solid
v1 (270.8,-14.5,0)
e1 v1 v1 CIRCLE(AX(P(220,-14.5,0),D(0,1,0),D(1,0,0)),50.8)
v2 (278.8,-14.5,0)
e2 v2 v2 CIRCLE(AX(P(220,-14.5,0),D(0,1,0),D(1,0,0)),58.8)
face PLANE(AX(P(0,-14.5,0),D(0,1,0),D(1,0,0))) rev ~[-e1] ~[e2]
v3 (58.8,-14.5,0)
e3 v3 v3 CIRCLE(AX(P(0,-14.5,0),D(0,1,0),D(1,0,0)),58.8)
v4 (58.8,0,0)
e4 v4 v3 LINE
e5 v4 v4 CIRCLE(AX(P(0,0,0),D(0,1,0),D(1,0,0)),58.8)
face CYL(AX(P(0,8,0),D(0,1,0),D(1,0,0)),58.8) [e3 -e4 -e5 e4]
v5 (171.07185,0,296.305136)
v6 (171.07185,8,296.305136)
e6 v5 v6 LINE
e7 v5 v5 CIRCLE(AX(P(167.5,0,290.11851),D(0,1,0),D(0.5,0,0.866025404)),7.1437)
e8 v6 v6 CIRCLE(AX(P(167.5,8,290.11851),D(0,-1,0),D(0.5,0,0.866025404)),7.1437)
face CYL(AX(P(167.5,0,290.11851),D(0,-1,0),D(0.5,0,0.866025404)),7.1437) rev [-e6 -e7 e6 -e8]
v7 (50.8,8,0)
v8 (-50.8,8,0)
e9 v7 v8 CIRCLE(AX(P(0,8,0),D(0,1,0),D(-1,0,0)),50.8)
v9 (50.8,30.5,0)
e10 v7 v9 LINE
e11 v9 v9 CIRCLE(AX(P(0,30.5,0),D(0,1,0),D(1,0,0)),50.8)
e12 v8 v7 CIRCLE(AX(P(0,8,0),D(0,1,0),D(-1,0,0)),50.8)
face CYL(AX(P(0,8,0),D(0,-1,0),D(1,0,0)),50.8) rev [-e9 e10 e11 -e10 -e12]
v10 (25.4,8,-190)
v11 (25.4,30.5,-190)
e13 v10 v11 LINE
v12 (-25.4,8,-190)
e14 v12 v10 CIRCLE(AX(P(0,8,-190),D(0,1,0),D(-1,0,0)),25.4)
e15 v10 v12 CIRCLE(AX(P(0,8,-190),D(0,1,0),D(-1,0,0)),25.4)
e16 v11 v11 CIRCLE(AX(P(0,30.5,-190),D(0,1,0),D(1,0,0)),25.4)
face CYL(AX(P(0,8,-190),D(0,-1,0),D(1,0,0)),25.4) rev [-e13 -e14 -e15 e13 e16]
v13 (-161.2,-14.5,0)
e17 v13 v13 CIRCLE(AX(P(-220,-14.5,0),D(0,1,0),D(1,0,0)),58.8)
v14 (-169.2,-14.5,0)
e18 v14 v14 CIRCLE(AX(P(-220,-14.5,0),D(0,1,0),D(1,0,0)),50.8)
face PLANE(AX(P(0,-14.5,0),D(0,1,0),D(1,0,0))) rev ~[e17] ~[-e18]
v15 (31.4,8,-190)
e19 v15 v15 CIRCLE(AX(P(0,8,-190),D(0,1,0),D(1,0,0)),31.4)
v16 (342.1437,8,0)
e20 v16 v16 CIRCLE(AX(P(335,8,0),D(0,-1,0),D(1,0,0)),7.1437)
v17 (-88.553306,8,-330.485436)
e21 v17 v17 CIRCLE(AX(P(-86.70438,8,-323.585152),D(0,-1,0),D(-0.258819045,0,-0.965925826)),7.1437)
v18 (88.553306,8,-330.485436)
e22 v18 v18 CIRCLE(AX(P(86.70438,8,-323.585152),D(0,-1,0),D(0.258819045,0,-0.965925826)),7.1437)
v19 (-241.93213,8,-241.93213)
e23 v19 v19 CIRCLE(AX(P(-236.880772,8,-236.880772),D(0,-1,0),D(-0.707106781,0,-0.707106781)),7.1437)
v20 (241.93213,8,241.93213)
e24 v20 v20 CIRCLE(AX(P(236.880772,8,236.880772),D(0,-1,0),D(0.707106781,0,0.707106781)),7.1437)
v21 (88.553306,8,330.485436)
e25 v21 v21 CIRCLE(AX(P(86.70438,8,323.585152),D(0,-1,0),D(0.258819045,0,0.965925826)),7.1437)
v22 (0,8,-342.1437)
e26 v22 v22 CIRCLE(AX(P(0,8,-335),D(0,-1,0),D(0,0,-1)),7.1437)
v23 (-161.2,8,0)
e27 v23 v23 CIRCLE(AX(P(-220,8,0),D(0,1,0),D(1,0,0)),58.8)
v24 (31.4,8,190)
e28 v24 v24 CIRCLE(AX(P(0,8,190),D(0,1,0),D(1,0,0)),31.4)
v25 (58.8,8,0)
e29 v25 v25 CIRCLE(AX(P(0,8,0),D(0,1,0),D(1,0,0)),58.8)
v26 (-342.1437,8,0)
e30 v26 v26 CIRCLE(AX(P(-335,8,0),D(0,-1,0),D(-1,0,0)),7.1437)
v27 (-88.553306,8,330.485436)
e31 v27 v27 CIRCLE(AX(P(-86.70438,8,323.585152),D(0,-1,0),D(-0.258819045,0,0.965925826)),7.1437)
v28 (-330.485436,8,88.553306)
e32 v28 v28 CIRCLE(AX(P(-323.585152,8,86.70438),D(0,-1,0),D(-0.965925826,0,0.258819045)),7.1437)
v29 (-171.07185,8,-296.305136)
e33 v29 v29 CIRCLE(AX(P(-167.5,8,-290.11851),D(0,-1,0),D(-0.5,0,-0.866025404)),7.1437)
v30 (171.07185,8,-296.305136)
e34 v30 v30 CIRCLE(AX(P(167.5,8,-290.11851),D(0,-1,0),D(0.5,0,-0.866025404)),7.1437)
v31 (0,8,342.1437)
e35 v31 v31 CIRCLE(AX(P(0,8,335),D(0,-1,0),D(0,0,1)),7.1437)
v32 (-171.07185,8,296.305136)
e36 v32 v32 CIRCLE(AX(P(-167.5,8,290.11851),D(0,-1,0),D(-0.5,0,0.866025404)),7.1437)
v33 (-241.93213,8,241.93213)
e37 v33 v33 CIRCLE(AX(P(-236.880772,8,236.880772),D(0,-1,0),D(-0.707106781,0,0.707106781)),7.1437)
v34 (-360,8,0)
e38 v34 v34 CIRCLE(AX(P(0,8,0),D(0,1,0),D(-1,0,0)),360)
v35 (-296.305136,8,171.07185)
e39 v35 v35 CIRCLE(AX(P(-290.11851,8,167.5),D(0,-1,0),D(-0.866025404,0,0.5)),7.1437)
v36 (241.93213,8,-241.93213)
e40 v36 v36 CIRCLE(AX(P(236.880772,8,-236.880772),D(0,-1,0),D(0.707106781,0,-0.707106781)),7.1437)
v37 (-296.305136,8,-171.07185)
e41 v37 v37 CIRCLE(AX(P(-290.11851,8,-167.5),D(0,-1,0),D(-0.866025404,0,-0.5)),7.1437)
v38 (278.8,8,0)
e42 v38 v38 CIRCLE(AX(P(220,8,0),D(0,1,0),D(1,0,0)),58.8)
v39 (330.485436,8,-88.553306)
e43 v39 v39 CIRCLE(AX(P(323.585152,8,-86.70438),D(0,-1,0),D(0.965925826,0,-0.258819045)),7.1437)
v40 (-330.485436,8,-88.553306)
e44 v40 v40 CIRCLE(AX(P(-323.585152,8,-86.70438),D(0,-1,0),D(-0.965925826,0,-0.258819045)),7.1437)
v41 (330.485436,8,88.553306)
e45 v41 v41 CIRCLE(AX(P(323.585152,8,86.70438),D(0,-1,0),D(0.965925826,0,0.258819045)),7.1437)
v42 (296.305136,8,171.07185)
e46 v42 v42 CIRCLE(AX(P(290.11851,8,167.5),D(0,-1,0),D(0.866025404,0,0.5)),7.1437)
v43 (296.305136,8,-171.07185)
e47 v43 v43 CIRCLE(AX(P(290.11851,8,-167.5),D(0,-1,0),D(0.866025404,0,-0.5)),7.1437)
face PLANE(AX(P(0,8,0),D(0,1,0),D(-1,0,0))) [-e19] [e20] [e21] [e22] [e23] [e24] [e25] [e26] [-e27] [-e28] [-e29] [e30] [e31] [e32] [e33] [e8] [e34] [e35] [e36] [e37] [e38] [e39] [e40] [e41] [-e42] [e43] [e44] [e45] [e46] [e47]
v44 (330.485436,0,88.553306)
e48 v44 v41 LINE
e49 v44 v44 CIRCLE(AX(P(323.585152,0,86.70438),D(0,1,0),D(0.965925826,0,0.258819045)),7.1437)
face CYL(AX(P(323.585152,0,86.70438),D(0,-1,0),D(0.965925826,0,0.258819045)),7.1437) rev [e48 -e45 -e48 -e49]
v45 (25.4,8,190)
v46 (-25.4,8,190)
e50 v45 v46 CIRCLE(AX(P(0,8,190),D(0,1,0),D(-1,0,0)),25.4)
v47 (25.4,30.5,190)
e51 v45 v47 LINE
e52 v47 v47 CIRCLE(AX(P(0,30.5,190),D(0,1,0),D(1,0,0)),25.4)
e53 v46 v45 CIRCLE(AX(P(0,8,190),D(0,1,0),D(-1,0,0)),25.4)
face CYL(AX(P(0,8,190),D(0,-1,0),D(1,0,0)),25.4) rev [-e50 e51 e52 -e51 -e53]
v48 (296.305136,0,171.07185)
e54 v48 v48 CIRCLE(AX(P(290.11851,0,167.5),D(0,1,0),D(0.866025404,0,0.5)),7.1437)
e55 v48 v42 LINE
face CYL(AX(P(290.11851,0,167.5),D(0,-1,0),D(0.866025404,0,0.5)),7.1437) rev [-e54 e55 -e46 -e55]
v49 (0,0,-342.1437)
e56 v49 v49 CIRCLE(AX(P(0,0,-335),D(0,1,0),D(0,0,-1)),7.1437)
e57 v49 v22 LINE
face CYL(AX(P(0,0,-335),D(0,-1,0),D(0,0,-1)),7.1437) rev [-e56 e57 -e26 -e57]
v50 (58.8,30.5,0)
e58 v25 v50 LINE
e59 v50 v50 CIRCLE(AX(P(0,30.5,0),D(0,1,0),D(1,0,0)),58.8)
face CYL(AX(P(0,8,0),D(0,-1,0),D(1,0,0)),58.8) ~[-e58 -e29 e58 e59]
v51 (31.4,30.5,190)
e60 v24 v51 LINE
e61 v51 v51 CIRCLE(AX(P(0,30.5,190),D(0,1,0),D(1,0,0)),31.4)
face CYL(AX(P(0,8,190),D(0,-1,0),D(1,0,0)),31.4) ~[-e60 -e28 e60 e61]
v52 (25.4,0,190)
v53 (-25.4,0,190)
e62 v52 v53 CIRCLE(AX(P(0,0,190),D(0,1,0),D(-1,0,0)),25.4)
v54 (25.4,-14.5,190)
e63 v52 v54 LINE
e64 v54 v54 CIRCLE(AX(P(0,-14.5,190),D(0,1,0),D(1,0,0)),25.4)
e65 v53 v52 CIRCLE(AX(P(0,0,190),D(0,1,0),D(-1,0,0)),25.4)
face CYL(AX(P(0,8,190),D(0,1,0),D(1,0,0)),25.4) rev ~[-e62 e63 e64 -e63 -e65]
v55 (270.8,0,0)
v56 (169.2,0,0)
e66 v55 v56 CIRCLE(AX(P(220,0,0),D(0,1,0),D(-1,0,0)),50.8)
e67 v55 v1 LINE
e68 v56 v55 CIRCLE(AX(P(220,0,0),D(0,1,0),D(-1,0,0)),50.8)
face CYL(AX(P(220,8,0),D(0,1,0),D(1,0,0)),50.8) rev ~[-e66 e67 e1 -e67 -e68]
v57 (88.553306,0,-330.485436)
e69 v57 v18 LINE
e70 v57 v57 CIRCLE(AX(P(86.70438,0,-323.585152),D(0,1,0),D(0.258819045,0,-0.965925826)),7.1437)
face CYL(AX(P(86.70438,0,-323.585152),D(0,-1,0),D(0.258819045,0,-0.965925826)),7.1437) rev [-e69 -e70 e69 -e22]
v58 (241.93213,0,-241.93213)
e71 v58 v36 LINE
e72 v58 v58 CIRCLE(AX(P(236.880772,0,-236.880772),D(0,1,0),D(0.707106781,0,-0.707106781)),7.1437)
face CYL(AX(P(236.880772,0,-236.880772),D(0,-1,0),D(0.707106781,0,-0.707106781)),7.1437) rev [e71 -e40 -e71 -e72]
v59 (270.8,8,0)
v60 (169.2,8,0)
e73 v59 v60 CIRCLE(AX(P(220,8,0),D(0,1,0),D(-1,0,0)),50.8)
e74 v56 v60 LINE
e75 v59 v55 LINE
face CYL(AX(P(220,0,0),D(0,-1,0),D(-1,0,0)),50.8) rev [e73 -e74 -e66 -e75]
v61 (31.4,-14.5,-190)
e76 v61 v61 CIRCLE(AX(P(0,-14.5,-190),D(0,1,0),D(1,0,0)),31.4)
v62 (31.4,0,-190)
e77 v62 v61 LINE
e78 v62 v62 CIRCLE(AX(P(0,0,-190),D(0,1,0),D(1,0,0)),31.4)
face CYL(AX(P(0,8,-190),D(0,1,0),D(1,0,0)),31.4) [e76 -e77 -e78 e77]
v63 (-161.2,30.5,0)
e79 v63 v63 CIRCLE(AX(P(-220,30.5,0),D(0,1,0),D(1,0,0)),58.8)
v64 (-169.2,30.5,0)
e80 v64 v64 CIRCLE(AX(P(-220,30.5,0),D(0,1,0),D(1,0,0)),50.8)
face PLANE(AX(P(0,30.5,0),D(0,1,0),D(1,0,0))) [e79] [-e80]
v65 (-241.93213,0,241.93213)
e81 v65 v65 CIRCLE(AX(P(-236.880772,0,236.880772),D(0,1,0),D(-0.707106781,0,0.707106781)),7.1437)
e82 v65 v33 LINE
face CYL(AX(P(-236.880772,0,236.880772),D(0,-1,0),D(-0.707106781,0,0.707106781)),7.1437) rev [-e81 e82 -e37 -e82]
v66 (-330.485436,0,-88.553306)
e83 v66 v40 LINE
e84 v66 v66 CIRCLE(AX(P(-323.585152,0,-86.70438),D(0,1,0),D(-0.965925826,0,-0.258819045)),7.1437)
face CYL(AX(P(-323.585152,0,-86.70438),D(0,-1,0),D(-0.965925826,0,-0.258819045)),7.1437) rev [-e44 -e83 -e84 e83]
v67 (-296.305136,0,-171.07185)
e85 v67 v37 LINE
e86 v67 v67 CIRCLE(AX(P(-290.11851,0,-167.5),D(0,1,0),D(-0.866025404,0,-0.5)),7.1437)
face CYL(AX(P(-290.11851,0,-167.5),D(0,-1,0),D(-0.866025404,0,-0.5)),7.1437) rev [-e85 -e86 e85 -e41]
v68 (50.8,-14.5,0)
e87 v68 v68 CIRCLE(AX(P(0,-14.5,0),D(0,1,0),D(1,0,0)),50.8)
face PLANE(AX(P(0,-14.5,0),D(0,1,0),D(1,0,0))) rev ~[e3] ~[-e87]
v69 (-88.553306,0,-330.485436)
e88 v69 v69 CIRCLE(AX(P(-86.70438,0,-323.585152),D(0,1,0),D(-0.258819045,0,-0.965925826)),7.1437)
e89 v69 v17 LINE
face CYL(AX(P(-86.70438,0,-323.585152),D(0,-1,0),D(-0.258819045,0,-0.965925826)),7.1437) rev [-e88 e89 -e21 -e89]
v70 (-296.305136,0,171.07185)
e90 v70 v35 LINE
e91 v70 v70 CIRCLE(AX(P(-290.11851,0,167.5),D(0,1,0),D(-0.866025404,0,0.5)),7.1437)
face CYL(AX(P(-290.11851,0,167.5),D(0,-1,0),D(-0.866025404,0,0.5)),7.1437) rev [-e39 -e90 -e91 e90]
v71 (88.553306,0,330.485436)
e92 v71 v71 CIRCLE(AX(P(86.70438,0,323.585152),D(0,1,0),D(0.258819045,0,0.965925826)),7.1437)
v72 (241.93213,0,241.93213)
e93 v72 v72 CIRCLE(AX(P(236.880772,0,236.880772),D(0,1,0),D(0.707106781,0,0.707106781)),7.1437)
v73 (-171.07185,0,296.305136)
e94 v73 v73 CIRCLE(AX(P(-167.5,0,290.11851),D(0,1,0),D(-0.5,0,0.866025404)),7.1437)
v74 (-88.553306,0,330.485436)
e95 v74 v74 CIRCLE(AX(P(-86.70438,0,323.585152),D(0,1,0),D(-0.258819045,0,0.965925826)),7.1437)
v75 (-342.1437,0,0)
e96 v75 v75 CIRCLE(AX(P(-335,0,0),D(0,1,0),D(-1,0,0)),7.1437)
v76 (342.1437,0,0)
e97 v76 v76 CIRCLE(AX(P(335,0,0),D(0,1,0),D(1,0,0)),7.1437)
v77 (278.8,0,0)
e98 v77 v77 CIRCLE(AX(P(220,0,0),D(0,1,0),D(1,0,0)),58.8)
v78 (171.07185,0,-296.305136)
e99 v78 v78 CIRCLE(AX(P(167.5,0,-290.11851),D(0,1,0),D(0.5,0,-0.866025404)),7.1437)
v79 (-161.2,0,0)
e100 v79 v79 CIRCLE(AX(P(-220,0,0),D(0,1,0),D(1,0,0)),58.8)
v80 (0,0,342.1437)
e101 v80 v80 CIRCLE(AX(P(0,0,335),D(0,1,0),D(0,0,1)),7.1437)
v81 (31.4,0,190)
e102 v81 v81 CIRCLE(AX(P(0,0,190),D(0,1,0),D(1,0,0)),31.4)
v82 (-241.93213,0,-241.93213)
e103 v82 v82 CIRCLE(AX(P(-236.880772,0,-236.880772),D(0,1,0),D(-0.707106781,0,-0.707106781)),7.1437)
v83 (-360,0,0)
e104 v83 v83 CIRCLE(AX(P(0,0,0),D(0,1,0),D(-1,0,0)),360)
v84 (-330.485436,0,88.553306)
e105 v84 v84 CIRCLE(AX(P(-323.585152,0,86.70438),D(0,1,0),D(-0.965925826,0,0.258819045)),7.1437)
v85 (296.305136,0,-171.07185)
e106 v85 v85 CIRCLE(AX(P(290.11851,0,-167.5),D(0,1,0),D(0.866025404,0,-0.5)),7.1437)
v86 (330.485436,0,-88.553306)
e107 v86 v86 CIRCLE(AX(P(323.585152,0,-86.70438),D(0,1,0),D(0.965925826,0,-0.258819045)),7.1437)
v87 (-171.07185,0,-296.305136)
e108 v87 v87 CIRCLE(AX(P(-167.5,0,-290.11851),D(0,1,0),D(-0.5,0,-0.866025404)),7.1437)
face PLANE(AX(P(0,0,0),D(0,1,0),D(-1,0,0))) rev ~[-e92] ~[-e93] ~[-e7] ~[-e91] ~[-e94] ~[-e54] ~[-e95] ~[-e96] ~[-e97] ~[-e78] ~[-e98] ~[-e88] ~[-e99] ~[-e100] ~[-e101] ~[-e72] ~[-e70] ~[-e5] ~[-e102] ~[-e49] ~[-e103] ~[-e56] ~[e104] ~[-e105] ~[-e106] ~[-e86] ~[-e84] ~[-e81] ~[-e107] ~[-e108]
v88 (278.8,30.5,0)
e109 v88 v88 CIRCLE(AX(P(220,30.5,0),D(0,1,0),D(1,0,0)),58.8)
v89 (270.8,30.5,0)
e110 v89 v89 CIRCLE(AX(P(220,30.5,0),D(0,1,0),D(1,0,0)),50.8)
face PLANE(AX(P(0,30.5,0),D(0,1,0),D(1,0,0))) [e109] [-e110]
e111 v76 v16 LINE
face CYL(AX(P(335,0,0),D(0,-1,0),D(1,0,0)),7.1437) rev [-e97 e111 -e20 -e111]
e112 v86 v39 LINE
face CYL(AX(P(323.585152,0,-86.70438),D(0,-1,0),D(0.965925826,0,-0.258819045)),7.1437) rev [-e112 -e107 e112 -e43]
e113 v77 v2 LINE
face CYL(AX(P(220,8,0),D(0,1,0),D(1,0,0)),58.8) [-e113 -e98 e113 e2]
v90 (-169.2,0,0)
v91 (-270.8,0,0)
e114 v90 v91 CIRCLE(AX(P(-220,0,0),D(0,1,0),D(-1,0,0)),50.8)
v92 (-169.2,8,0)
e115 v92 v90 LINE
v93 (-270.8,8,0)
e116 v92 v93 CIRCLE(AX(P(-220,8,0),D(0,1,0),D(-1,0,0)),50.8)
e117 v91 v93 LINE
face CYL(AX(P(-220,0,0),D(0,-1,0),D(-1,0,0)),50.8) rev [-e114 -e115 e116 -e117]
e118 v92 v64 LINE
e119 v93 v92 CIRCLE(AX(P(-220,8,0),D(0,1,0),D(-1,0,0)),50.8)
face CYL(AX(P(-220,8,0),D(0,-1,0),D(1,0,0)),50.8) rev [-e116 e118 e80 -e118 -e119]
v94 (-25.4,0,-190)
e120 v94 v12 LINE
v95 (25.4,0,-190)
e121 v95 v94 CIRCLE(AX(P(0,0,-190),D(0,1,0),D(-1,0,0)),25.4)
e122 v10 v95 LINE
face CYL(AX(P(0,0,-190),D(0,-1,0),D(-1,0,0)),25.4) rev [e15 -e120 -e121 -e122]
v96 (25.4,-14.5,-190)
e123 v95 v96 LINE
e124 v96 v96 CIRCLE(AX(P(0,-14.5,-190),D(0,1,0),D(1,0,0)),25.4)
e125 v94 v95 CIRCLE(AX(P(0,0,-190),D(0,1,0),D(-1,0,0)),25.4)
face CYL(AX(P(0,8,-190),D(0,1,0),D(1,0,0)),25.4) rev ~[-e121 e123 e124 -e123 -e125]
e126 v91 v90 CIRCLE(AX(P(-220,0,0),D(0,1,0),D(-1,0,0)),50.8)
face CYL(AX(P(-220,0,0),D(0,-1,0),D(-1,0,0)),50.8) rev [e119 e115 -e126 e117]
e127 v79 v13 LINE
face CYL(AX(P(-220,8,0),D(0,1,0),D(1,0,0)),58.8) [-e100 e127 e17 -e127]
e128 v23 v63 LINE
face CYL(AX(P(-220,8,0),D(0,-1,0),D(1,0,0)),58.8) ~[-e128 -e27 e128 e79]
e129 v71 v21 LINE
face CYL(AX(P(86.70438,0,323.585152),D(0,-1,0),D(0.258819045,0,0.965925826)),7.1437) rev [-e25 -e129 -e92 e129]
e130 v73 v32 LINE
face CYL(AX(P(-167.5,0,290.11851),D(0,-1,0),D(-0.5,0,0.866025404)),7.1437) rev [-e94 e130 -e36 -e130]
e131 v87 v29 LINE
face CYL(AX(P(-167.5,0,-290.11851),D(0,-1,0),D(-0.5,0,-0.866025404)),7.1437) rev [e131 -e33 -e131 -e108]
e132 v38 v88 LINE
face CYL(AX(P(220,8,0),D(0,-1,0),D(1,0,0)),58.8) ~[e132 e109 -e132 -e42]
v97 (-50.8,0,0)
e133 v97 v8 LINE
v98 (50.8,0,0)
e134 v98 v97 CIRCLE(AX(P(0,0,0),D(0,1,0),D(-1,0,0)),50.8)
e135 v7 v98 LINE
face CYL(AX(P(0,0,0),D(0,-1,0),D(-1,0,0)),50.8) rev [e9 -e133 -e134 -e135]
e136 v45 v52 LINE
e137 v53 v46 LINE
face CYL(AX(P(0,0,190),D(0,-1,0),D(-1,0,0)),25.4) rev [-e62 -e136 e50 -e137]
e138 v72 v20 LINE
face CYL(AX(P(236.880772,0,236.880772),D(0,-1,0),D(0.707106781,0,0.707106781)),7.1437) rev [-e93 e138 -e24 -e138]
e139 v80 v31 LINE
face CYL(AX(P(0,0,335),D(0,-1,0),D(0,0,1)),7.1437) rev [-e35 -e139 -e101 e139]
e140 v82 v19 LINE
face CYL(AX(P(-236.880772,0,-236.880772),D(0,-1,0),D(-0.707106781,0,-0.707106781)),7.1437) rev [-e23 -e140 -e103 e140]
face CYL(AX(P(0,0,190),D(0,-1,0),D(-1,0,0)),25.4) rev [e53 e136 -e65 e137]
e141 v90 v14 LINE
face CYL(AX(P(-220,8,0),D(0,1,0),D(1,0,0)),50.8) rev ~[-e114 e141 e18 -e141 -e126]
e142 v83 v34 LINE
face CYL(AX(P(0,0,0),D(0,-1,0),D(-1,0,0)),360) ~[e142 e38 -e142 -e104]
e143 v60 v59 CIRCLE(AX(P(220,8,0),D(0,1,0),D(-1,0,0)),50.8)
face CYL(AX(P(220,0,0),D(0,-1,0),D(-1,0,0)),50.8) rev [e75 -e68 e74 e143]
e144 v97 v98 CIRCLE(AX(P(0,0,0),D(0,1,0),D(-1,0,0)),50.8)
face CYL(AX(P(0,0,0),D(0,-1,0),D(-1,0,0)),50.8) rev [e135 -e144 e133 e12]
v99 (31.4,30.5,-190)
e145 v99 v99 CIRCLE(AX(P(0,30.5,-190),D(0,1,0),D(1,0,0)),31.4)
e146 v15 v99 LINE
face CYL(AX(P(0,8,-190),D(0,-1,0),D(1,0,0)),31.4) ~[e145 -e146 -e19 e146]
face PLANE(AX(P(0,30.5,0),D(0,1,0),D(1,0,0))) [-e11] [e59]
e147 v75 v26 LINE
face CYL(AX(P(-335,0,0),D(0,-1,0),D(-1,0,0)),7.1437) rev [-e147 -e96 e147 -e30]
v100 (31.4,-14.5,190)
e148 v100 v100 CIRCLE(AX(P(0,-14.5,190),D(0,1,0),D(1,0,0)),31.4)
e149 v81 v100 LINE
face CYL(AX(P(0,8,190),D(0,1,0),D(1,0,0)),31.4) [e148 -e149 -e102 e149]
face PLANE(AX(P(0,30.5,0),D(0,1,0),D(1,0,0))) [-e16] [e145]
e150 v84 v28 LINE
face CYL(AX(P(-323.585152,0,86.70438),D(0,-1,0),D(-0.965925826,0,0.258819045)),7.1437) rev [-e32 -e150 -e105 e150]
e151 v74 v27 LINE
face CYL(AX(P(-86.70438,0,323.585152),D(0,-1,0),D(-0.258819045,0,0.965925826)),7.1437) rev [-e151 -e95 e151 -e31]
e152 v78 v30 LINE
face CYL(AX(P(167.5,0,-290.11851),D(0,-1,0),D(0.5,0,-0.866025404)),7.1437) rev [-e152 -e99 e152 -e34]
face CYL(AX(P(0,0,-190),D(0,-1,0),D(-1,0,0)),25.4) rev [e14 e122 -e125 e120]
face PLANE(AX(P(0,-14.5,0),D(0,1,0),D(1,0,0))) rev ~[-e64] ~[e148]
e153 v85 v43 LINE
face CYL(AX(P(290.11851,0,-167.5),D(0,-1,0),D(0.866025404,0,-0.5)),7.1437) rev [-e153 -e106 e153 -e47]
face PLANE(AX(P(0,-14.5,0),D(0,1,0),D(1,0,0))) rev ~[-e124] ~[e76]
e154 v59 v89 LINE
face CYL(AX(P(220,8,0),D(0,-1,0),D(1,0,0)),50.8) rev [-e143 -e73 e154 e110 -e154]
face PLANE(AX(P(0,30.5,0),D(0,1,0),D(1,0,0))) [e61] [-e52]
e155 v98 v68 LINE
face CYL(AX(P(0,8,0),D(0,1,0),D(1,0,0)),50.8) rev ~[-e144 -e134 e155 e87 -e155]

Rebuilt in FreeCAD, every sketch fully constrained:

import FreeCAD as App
import Part
import Sketcher

doc = App.newDocument("Part")
body = doc.addObject("PartDesign::Body", "Body")

sketch1 = body.newObject("Sketcher::SketchObject", "Sketch")
sketch1.AttachmentSupport = (doc.getObject("XZ_Plane"), [""])
sketch1.MapMode = "FlatFace"
sketch1.addGeometry([
    Part.Circle(App.Vector(0, 0, 0), App.Vector(0, 0, 1), 360),
    Part.Circle(App.Vector(0, -190, 0), App.Vector(0, 0, 1), 25),
    Part.Circle(App.Vector(220, 0, 0), App.Vector(0, 0, 1), 51),
    Part.Circle(App.Vector(0, 0, 0), App.Vector(0, 0, 1), 51),
    Part.Circle(App.Vector(-220, 0, 0), App.Vector(0, 0, 1), 51),
    Part.Circle(App.Vector(0, 190, 0), App.Vector(0, 0, 1), 25),
], False)
sketch1.addConstraint([
    Sketcher.Constraint("Coincident", 0, 3, -1, 1),
    Sketcher.Constraint("Coincident", 3, 3, -1, 1),
    Sketcher.Constraint("Equal", 2, 3),
    Sketcher.Constraint("Equal", 3, 4),
    Sketcher.Constraint("Equal", 1, 5),
    Sketcher.Constraint("Symmetric", 2, 3, 4, 3, -1, 1),
    Sketcher.Constraint("Symmetric", 1, 3, 5, 3, -1, 1),
    Sketcher.Constraint("PointOnObject", 1, 3, -2),
    Sketcher.Constraint("PointOnObject", 2, 3, -1),
    Sketcher.Constraint("Diameter", 0, 720.0),
    Sketcher.Constraint("Diameter", 1, 50.8),
    Sketcher.Constraint("Diameter", 2, 101.6),
    Sketcher.Constraint("DistanceX", 4, 3, 2, 3, 440.0),
    Sketcher.Constraint("DistanceY", 1, 3, 5, 3, 380.0),
])
pad1 = body.newObject("PartDesign::Pad", "Pad")
pad1.Profile = sketch1
pad1.Length = 8
pad1.Reversed = True

sketch2 = body.newObject("Sketcher::SketchObject", "Sketch001")
sketch2.AttachmentSupport = (doc.getObject("XZ_Plane"), [""])
sketch2.MapMode = "FlatFace"
sketch2.addGeometry(Part.Circle(App.Vector(-335, 0, 0), App.Vector(0, 0, 1), 7), False)
sketch2.addConstraint([
    Sketcher.Constraint("PointOnObject", 0, 3, -1),
    Sketcher.Constraint("Diameter", 0, 14.2874),
    Sketcher.Constraint("DistanceX", 0, 3, -1, 1, 335.0),
])
pocket1 = body.newObject("PartDesign::Pocket", "Pocket")
pocket1.Profile = sketch2
pocket1.Type = "ThroughAll"
doc.recompute()

polarpattern = body.newObject("PartDesign::PolarPattern", "PolarPattern")
polarpattern.Originals = [pocket1]
polarpattern.Axis = (doc.getObject("Y_Axis"), [""])
polarpattern.Angle = 360
polarpattern.Occurrences = 24
body.Tip = polarpattern

sketch3 = body.newObject("Sketcher::SketchObject", "Sketch002")
sketch3.AttachmentSupport = (doc.getObject("XZ_Plane"), [""])
sketch3.MapMode = "FlatFace"
sketch3.AttachmentOffset = App.Placement(App.Vector(0, 0, -8), App.Rotation())
sketch3.addGeometry([
    Part.Circle(App.Vector(0, -190, 0), App.Vector(0, 0, 1), 31),
    Part.Circle(App.Vector(0, -190, 0), App.Vector(0, 0, 1), 25),
    Part.Circle(App.Vector(220, 0, 0), App.Vector(0, 0, 1), 59),
    Part.Circle(App.Vector(220, 0, 0), App.Vector(0, 0, 1), 51),
    Part.Circle(App.Vector(0, 0, 0), App.Vector(0, 0, 1), 59),
    Part.Circle(App.Vector(0, 0, 0), App.Vector(0, 0, 1), 51),
    Part.Circle(App.Vector(0, 190, 0), App.Vector(0, 0, 1), 31),
    Part.Circle(App.Vector(0, 190, 0), App.Vector(0, 0, 1), 25),
    Part.Circle(App.Vector(-220, 0, 0), App.Vector(0, 0, 1), 59),
    Part.Circle(App.Vector(-220, 0, 0), App.Vector(0, 0, 1), 51),
], False)
sketch3.addConstraint([
    Sketcher.Constraint("Coincident", 4, 3, -1, 1),
    Sketcher.Constraint("Coincident", 5, 3, -1, 1),
    Sketcher.Constraint("Coincident", 1, 3, 0, 3),
    Sketcher.Constraint("Coincident", 3, 3, 2, 3),
    Sketcher.Constraint("Coincident", 7, 3, 6, 3),
    Sketcher.Constraint("Coincident", 9, 3, 8, 3),
    Sketcher.Constraint("Equal", 2, 4),
    Sketcher.Constraint("Equal", 3, 5),
    Sketcher.Constraint("Equal", 0, 6),
    Sketcher.Constraint("Equal", 1, 7),
    Sketcher.Constraint("Equal", 4, 8),
    Sketcher.Constraint("Equal", 5, 9),
    Sketcher.Constraint("Symmetric", 0, 3, 6, 3, -1, 1),
    Sketcher.Constraint("Symmetric", 2, 3, 8, 3, -1, 1),
    Sketcher.Constraint("PointOnObject", 0, 3, -2),
    Sketcher.Constraint("PointOnObject", 2, 3, -1),
    Sketcher.Constraint("Diameter", 0, 62.8),
    Sketcher.Constraint("Diameter", 1, 50.8),
    Sketcher.Constraint("Diameter", 2, 117.6),
    Sketcher.Constraint("Diameter", 3, 101.6),
    Sketcher.Constraint("DistanceY", 0, 3, -1, 1, 190.0),
    Sketcher.Constraint("DistanceX", -1, 1, 2, 3, 220.0),
])
pad2 = body.newObject("PartDesign::Pad", "Pad001")
pad2.Profile = sketch3
pad2.Length = 45
pad2.Midplane = True

doc.recompute()
